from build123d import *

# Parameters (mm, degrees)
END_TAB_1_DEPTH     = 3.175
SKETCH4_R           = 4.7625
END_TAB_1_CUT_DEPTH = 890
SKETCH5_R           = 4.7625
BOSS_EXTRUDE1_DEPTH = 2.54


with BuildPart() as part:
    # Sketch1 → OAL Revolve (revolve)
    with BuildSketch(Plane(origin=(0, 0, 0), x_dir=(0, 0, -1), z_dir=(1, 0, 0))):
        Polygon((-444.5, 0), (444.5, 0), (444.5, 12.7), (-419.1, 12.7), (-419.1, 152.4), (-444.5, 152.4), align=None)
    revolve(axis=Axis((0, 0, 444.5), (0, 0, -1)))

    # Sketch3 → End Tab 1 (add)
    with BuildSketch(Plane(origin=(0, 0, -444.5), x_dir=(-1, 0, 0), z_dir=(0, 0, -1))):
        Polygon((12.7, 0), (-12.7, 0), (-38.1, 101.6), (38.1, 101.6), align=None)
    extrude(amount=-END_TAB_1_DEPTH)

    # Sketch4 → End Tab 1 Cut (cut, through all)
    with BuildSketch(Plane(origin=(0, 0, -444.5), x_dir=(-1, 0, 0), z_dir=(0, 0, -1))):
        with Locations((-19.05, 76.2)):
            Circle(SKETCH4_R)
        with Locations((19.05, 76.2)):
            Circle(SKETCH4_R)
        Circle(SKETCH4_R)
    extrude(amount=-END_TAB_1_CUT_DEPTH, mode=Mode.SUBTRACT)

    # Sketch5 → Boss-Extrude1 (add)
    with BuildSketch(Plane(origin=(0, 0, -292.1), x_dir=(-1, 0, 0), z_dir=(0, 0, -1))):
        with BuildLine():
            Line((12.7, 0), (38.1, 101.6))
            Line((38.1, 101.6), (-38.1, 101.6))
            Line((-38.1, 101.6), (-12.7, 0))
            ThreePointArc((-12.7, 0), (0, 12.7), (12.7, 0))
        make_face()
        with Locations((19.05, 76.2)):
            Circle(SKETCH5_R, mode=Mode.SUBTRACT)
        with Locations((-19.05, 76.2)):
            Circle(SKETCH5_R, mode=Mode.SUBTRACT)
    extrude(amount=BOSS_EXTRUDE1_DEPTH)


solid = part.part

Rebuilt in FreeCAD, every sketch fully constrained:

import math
import FreeCAD as App
import Part
import Sketcher
from FreeCAD import Vector
Q = App.Units.Quantity

doc = App.newDocument("Part")
body = doc.addObject("PartDesign::Body", "Body")

sketch1 = body.newObject("Sketcher::SketchObject", "Sketch")
sketch1.AttachmentSupport = (doc.getObject("YZ_Plane"), [""])
sketch1.MapMode = "FlatFace"
sketch1.addGeometry([
    Part.LineSegment(Vector(0, 444, 0), Vector(0, -444, 0)),
    Part.LineSegment(Vector(0, -444, 0), Vector(13, -444, 0)),
    Part.LineSegment(Vector(13, -444, 0), Vector(13, 419, 0)),
    Part.LineSegment(Vector(13, 419, 0), Vector(152, 419, 0)),
    Part.LineSegment(Vector(152, 419, 0), Vector(152, 444, 0)),
    Part.LineSegment(Vector(152, 444, 0), Vector(0, 444, 0)),
], False)
sketch1.addConstraint([
    Sketcher.Constraint("Coincident", 0, 2, 1, 1),
    Sketcher.Constraint("Coincident", 1, 2, 2, 1),
    Sketcher.Constraint("Coincident", 2, 2, 3, 1),
    Sketcher.Constraint("Coincident", 3, 2, 4, 1),
    Sketcher.Constraint("Coincident", 4, 2, 5, 1),
    Sketcher.Constraint("Coincident", 5, 2, 0, 1),
    Sketcher.Constraint("Vertical", 0),
    Sketcher.Constraint("Horizontal", 1),
    Sketcher.Constraint("Vertical", 2),
    Sketcher.Constraint("Horizontal", 3),
    Sketcher.Constraint("Vertical", 4),
    Sketcher.Constraint("Horizontal", 5),
    Sketcher.Constraint("Symmetric", 0, 2, 5, 2, -1, 1),
    Sketcher.Constraint("DistanceX", 5, 2, 5, 1, Q("6 in")),
    Sketcher.Constraint("DistanceY", 0, 2, 0, 1, Q("35 in")),
    Sketcher.Constraint("DistanceY", 2, 1, 2, 2, Q("34 in")),
    Sketcher.Constraint("DistanceX", 1, 1, 1, 2, Q("0.5 in")),
])
revolution = body.newObject("PartDesign::Revolution", "Revolution")
revolution.Profile = sketch1
revolution.ReferenceAxis = (sketch1, ["V_Axis"])
revolution.Angle = 360

sketch2 = body.newObject("Sketcher::SketchObject", "Sketch001")
sketch2.AttachmentSupport = (doc.getObject("XY_Plane"), [""])
sketch2.MapMode = "FlatFace"
sketch2.AttachmentOffset = App.Placement(Vector(0, 0, -17.5 * 25.4), App.Rotation())
sketch2.addGeometry([
    Part.LineSegment(Vector(13, 0, 0), Vector(-13, 0, 0)),
    Part.LineSegment(Vector(-13, 0, 0), Vector(-38, 102, 0)),
    Part.LineSegment(Vector(-38, 102, 0), Vector(38, 102, 0)),
    Part.LineSegment(Vector(38, 102, 0), Vector(13, 0, 0)),
], False)
sketch2.addConstraint([
    Sketcher.Constraint("Coincident", 0, 2, 1, 1),
    Sketcher.Constraint("Coincident", 1, 2, 2, 1),
    Sketcher.Constraint("Coincident", 2, 2, 3, 1),
    Sketcher.Constraint("Coincident", 3, 2, 0, 1),
    Sketcher.Constraint("Horizontal", 0),
    Sketcher.Constraint("Horizontal", 2),
    Sketcher.Constraint("Symmetric", 0, 2, 3, 2, -1, 1),
    Sketcher.Constraint("Equal", 1, 3),
    Sketcher.Constraint("DistanceX", 0, 2, 0, 1, Q("1 in")),
    Sketcher.Constraint("DistanceX", 2, 1, 2, 2, Q("3 in")),
    Sketcher.Constraint("DistanceY", -1, 1, 1, 2, Q("4 in")),
])
pad1 = body.newObject("PartDesign::Pad", "Pad")
pad1.Profile = sketch2
pad1.Length = Q("0.125 in")

sketch3 = body.newObject("Sketcher::SketchObject", "Sketch002")
sketch3.AttachmentSupport = (doc.getObject("XY_Plane"), [""])
sketch3.MapMode = "FlatFace"
sketch3.AttachmentOffset = App.Placement(Vector(0, 0, -17.5 * 25.4), App.Rotation())
sketch3.addGeometry([
    Part.Circle(Vector(19.1, 76.2, 0), Vector(0, 0, 1), 4.8),
    Part.Circle(Vector(-19.1, 76.2, 0), Vector(0, 0, 1), 4.8),
    Part.Circle(Vector(0, 0, 0), Vector(0, 0, 1), 4.8),
], False)
sketch3.addConstraint([
    Sketcher.Constraint("Coincident", 2, 3, -1, 1),
    Sketcher.Constraint("Equal", 0, 1),
    Sketcher.Constraint("Equal", 1, 2),
    Sketcher.Constraint("Symmetric", 0, 3, 1, 3, -2),
    Sketcher.Constraint("Diameter", 0, Q("0.375 in")),
    Sketcher.Constraint("DistanceY", -1, 1, 0, 3, Q("3 in")),
    Sketcher.Constraint("DistanceX", 1, 3, 0, 3, Q("1.5 in")),
])
pocket1 = body.newObject("PartDesign::Pocket", "Pocket")
pocket1.Profile = sketch3
pocket1.Type = "ThroughAll"
pocket1.Reversed = True

sketch4 = body.newObject("Sketcher::SketchObject", "Sketch003")
sketch4.AttachmentSupport = (doc.getObject("XY_Plane"), [""])
sketch4.MapMode = "FlatFace"
sketch4.AttachmentOffset = App.Placement(Vector(0, 0, -11.5 * 25.4), App.Rotation())
sketch4.addGeometry([
    Part.LineSegment(Vector(-12.7, 0, 0), Vector(-38.1, 101.6, 0)),
    Part.LineSegment(Vector(-38.1, 101.6, 0), Vector(38.1, 101.6, 0)),
    Part.LineSegment(Vector(38.1, 101.6, 0), Vector(12.7, 0, 0)),
    Part.ArcOfCircle(Part.Circle(Vector(0, 0, 0), Vector(0, 0, 1), 12.7), math.radians(0), math.radians(180)),
    Part.Circle(Vector(19.1, 76.2, 0), Vector(0, 0, 1), 4.8),
    Part.Circle(Vector(-19.1, 76.2, 0), Vector(0, 0, 1), 4.8),
], False)
sketch4.addConstraint([
    Sketcher.Constraint("Coincident", 0, 2, 1, 1),
    Sketcher.Constraint("Coincident", 1, 2, 2, 1),
    Sketcher.Constraint("Coincident", 2, 2, 3, 1),
    Sketcher.Constraint("Coincident", 3, 2, 0, 1),
    Sketcher.Constraint("Horizontal", 1),
    Sketcher.Constraint("Coincident", 3, 3, -1, 1),
    Sketcher.Constraint("Equal", 4, 5),
    Sketcher.Constraint("Symmetric", 4, 3, 5, 3, -2),
    Sketcher.Constraint("PointOnObject", 2, 2, -1),
    Sketcher.Constraint("PointOnObject", 3, 2, -1),
    Sketcher.Constraint("Equal", 0, 2),
    Sketcher.Constraint("Radius", 3, Q("0.5 in")),
    Sketcher.Constraint("DistanceX", 1, 1, 1, 2, Q("3 in")),
    Sketcher.Constraint("Diameter", 4, Q("0.375 in")),
    Sketcher.Constraint("DistanceY", -1, 1, 4, 3, Q("3 in")),
    Sketcher.Constraint("DistanceY", -1, 1, 0, 2, Q("4 in")),
    Sketcher.Constraint("DistanceX", 5, 3, 4, 3, Q("1.5 in")),
])
pad2 = body.newObject("PartDesign::Pad", "Pad001")
pad2.Profile = sketch4
pad2.Length = Q("0.1 in")
pad2.Reversed = True

doc.recompute()
